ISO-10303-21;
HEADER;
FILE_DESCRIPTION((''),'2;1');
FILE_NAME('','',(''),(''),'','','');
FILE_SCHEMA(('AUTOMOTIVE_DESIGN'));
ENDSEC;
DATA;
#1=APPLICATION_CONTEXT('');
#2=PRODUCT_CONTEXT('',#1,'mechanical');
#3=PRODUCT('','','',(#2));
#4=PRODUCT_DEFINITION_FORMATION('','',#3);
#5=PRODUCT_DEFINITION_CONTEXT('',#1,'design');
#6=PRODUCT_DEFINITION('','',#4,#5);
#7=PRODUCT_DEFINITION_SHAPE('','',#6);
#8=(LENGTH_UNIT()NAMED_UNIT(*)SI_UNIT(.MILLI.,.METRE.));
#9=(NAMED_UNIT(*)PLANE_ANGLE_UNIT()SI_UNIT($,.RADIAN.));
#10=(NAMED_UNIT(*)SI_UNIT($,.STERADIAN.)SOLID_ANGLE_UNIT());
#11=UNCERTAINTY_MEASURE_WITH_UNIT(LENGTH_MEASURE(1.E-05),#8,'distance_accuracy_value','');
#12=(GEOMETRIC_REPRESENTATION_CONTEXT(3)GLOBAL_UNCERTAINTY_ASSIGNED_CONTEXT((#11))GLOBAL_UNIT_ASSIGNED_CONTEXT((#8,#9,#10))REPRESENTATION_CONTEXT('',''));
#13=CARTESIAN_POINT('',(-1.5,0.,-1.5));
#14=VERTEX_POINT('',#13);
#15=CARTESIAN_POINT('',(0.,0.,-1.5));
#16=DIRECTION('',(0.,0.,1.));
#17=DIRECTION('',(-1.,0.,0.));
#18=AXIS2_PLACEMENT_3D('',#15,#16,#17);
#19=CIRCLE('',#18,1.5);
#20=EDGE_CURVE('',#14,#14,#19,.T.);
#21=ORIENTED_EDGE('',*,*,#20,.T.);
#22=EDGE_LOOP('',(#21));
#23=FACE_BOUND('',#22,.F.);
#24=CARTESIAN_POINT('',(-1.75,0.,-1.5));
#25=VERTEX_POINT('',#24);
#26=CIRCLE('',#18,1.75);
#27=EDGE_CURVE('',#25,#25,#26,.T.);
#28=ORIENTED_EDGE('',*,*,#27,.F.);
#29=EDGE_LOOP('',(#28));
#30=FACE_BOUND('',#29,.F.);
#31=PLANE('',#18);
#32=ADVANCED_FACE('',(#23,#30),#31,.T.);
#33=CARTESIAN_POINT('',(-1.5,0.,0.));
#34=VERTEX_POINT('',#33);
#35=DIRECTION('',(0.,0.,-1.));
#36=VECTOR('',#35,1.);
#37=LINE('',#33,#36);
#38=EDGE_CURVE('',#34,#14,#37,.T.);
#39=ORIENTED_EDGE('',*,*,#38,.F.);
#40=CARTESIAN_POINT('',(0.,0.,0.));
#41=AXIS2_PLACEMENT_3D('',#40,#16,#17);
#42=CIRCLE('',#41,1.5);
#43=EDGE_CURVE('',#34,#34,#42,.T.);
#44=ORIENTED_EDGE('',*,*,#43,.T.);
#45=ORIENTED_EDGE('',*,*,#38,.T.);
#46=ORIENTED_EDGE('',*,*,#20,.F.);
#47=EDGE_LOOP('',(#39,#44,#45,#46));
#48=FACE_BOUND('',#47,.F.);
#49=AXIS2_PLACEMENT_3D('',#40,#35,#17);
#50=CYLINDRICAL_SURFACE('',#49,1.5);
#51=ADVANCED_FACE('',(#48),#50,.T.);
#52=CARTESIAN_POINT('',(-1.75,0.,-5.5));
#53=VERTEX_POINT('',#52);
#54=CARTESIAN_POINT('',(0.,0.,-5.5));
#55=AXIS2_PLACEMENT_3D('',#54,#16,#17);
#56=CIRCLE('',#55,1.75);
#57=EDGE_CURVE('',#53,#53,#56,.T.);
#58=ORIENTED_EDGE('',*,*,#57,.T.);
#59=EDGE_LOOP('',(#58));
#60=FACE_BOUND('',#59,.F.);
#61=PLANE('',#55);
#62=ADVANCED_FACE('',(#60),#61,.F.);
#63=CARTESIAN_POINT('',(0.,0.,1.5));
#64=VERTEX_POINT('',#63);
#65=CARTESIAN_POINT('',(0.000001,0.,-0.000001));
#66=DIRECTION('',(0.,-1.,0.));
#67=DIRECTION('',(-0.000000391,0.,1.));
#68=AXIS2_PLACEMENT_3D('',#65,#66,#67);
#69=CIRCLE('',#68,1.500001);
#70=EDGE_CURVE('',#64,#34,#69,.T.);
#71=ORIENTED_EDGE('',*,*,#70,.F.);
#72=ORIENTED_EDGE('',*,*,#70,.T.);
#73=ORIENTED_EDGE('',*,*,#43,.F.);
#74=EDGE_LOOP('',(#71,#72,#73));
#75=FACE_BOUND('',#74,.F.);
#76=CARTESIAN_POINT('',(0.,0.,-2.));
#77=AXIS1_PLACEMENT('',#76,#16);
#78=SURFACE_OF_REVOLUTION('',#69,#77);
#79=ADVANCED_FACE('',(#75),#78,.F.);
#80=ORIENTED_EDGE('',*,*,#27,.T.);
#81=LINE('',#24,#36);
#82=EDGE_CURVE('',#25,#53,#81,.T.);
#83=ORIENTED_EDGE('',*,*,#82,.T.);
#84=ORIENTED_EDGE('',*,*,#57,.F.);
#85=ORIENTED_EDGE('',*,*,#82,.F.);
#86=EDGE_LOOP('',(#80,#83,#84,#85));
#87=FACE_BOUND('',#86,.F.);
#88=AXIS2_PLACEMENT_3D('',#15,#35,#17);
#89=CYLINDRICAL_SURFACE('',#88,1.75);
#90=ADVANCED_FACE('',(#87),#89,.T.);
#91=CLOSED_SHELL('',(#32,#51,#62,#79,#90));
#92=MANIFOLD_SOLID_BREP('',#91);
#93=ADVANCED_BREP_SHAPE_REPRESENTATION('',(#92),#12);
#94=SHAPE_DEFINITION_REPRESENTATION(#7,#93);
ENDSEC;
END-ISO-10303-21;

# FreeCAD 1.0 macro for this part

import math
import FreeCAD as App
import Part
import Sketcher
from FreeCAD import Vector

doc = App.newDocument("Part")
body = doc.addObject("PartDesign::Body", "Body")

# Sketch on XZ plane
sketch1 = body.newObject("Sketcher::SketchObject", "Sketch")
sketch1.AttachmentSupport = (doc.getObject("XZ_Plane"), [""])
sketch1.MapMode = "FlatFace"
sketch1.addGeometry(Part.LineSegment(Vector(0, -5.5, 0), Vector(0, 1.5, 0)), False)
sketch1.addGeometry(Part.ArcOfCircle(Part.Circle(Vector(0.000001, -0.000001, 0), Vector(0, 0, 1), 1.500001), math.radians(90.000022), math.radians(179.999978)), False)
sketch1.addGeometry(Part.LineSegment(Vector(-1.5, 0, 0), Vector(-1.5, -1.5, 0)), False)
sketch1.addGeometry(Part.LineSegment(Vector(-1.5, -1.5, 0), Vector(-1.75, -1.5, 0)), False)
sketch1.addGeometry(Part.LineSegment(Vector(-1.75, -1.5, 0), Vector(-1.75, -5.5, 0)), False)
sketch1.addGeometry(Part.LineSegment(Vector(-1.75, -5.5, 0), Vector(0, -5.5, 0)), False)
sketch1.addConstraint(Sketcher.Constraint("Coincident", 0, 2, 1, 1))
sketch1.addConstraint(Sketcher.Constraint("Tangent", 1, 2, 2, 1))
sketch1.addConstraint(Sketcher.Constraint("Coincident", 2, 2, 3, 1))
sketch1.addConstraint(Sketcher.Constraint("Coincident", 3, 2, 4, 1))
sketch1.addConstraint(Sketcher.Constraint("Coincident", 4, 2, 5, 1))
sketch1.addConstraint(Sketcher.Constraint("Coincident", 5, 2, 0, 1))
sketch1.addConstraint(Sketcher.Constraint("Vertical", 0))
sketch1.addConstraint(Sketcher.Constraint("Vertical", 2))
sketch1.addConstraint(Sketcher.Constraint("Horizontal", 3))
sketch1.addConstraint(Sketcher.Constraint("Vertical", 4))
sketch1.addConstraint(Sketcher.Constraint("Horizontal", 5))
sketch1.addConstraint(Sketcher.Constraint("Coincident", 1, 3, -1, 1))
sketch1.addConstraint(Sketcher.Constraint("PointOnObject", 0, 2, -2))
sketch1.addConstraint(Sketcher.Constraint("Radius", 1, 1.500001))
sketch1.addConstraint(Sketcher.Constraint("DistanceY", 0, 1, 0, 2, 7.0))
sketch1.addConstraint(Sketcher.Constraint("DistanceY", 4, 2, 4, 1, 4.0))
sketch1.addConstraint(Sketcher.Constraint("DistanceX", 3, 2, 3, 1, 0.25))
revolution = body.newObject("PartDesign::Revolution", "Revolution")
revolution.Profile = sketch1
revolution.ReferenceAxis = (sketch1, ["V_Axis"])
revolution.Angle = 360

doc.recompute()
